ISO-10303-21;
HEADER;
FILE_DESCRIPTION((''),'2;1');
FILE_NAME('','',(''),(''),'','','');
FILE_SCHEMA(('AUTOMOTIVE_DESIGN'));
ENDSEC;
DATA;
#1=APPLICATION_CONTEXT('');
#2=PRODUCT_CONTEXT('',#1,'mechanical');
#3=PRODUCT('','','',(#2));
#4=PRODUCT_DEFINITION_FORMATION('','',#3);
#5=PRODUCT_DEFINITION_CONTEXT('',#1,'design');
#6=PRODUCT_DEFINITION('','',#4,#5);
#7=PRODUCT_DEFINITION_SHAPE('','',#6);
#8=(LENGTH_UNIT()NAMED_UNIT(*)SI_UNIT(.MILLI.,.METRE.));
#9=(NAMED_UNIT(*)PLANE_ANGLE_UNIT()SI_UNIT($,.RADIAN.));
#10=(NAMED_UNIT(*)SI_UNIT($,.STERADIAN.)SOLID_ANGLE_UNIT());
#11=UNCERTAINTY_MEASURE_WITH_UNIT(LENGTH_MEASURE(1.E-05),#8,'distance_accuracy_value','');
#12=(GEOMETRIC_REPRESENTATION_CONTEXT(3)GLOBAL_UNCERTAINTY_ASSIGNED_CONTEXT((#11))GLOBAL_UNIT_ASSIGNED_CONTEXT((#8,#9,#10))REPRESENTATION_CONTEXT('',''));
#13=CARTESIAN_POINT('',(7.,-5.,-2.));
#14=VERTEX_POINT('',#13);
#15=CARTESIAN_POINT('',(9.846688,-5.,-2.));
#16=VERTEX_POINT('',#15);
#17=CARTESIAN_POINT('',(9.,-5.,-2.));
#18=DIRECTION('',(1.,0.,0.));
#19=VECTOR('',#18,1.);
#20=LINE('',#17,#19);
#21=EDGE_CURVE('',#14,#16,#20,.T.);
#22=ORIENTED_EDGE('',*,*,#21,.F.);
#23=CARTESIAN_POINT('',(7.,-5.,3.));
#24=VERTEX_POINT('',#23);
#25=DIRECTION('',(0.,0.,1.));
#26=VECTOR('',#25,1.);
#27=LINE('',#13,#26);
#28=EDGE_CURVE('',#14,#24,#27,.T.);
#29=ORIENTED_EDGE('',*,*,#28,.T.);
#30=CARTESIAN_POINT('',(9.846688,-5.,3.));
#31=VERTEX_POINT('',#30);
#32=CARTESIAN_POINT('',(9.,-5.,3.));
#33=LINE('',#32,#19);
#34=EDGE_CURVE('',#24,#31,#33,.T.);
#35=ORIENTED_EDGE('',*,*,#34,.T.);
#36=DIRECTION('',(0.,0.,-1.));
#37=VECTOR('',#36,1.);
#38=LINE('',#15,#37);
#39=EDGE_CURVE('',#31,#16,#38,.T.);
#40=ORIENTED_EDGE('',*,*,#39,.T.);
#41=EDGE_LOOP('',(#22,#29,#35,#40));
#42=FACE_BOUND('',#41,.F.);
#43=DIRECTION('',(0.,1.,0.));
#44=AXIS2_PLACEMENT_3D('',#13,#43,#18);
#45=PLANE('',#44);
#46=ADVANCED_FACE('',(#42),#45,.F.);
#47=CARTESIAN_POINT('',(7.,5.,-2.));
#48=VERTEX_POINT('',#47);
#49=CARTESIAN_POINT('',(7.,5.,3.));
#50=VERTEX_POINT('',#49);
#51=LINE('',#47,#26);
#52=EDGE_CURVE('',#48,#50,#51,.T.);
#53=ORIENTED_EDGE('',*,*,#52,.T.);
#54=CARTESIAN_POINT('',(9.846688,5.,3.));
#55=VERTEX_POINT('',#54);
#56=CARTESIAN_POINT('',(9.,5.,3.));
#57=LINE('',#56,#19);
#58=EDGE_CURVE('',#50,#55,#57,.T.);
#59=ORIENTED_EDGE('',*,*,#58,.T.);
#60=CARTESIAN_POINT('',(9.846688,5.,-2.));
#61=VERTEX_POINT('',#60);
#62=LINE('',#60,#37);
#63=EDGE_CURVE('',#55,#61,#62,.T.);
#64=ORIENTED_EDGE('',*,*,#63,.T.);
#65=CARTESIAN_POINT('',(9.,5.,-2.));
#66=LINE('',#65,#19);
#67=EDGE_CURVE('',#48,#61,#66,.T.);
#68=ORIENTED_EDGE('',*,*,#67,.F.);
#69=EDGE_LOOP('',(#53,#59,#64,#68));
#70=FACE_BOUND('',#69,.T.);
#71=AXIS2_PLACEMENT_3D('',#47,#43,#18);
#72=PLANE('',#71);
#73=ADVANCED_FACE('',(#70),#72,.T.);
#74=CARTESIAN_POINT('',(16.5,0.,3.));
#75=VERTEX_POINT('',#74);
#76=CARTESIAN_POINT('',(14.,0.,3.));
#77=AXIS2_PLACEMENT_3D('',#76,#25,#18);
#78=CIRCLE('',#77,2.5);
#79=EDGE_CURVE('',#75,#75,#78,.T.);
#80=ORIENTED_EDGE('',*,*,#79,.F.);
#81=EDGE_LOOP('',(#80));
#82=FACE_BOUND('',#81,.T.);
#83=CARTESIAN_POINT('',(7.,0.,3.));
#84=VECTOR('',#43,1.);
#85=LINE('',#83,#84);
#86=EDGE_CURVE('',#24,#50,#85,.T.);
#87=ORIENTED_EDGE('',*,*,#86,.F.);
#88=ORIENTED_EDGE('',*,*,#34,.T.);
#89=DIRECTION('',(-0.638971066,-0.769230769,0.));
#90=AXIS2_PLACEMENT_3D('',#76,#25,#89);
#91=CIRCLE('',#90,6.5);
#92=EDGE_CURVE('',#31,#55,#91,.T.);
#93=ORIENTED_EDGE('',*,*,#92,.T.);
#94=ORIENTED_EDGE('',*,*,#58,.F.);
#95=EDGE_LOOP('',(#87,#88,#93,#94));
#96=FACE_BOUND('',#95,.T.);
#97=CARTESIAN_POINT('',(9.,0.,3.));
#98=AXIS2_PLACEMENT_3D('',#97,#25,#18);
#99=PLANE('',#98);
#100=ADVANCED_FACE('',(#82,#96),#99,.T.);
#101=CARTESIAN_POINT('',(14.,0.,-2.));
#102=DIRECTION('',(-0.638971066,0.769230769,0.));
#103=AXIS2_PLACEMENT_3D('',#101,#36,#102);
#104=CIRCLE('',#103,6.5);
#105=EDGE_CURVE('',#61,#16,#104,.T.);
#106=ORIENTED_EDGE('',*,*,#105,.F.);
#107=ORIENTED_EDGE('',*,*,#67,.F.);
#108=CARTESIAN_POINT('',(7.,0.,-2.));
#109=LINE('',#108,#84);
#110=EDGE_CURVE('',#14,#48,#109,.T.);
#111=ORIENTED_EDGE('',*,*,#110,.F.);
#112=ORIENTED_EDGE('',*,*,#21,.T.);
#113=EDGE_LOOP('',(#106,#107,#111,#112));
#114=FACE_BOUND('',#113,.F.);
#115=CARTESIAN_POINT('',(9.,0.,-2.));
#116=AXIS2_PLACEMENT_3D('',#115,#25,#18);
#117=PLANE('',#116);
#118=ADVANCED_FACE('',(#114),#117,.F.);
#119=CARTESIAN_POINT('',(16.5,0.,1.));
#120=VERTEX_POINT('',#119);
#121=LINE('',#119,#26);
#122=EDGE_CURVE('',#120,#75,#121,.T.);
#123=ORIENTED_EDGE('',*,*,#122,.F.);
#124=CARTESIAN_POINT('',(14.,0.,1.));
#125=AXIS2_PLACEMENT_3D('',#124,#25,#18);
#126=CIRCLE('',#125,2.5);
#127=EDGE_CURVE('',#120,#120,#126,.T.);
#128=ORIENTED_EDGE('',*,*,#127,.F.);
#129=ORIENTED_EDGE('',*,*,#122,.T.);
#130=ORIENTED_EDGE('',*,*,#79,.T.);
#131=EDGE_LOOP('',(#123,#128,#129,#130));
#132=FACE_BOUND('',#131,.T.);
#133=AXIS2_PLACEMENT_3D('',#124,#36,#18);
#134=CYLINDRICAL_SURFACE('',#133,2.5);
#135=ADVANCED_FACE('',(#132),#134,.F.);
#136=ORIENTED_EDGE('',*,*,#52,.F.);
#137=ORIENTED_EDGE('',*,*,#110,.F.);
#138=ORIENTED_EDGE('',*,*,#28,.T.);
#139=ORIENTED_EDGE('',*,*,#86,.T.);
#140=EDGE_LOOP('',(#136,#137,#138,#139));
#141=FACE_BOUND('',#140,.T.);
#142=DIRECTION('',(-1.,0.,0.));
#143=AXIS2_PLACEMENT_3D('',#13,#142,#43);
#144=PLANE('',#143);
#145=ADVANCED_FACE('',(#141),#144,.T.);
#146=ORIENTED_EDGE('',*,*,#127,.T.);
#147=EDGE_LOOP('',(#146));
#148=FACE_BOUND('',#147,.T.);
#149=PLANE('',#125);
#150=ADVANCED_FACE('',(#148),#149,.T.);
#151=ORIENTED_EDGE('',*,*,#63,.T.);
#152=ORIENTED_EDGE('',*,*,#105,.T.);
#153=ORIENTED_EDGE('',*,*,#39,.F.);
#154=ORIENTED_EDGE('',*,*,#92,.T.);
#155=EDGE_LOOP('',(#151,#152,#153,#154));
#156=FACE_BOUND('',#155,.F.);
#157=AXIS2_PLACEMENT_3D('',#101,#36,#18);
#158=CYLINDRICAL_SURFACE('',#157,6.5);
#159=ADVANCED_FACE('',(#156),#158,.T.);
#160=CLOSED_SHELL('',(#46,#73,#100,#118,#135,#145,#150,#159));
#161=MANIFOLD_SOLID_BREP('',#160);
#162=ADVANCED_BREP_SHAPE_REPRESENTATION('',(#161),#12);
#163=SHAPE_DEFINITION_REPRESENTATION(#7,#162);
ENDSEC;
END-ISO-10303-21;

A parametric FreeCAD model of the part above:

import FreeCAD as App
import Part
import Sketcher
from FreeCAD import Vector


def add_polygon(sketch, points):
    """Adds a closed chain of lines whose ends are joined by coincident constraints."""
    first, n = sketch.GeometryCount, len(points)
    for a, b in zip(points, points[1:] + points[:1]):
        sketch.addGeometry(Part.LineSegment(App.Vector(*a, 0), App.Vector(*b, 0)), False)
    for i in range(n):
        sketch.addConstraint(Sketcher.Constraint("Coincident", first + i, 2, first + (i + 1) % n, 1))

doc = App.newDocument("Part")
body = doc.addObject("PartDesign::Body", "Body")

sketch1 = body.newObject("Sketcher::SketchObject", "Sketch")
sketch1.AttachmentSupport = (doc.getObject("XY_Plane"), [""])
sketch1.MapMode = "FlatFace"
add_polygon(sketch1, [(7, 5), (7, -5), (11, -5), (11, 5)])
sketch1.addConstraint(Sketcher.Constraint("Vertical", 0))
sketch1.addConstraint(Sketcher.Constraint("Horizontal", 1))
sketch1.addConstraint(Sketcher.Constraint("Vertical", 2))
sketch1.addConstraint(Sketcher.Constraint("Horizontal", 3))
sketch1.addConstraint(Sketcher.Constraint("DistanceX", 1, 1, 1, 2, 4.0))
sketch1.addConstraint(Sketcher.Constraint("DistanceY", 0, 2, 0, 1, 10.0))
sketch1.addConstraint(Sketcher.Constraint("DistanceX", -1, 1, 0, 2, 7.0))
sketch1.addConstraint(Sketcher.Constraint("DistanceY", 0, 2, -1, 1, 5.0))
pad1 = body.newObject("PartDesign::Pad", "Pad")
pad1.Profile = sketch1
pad1.Length = 5
body2 = doc.addObject("PartDesign::Body", "Body001")

sketch2 = body2.newObject("Sketcher::SketchObject", "Sketch001")
sketch2.AttachmentSupport = (doc.getObject("XY_Plane001"), [""])
sketch2.MapMode = "FlatFace"
sketch2.AttachmentOffset = App.Placement(Vector(0, 0, 3), App.Rotation())
sketch2.addGeometry(Part.Circle(Vector(14, 0, 0), Vector(0, 0, 1), 2.5), False)
sketch2.addConstraint(Sketcher.Constraint("PointOnObject", 0, 3, -1))
sketch2.addConstraint(Sketcher.Constraint("Diameter", 0, 5.0))
sketch2.addConstraint(Sketcher.Constraint("DistanceX", -1, 1, 0, 3, 14.0))
pad2 = body2.newObject("PartDesign::Pad", "Pad001")
pad2.Profile = sketch2
pad2.Length = 2
body3 = doc.addObject("PartDesign::Body", "Body002")

sketch3 = body3.newObject("Sketcher::SketchObject", "Sketch002")
sketch3.AttachmentSupport = (doc.getObject("XY_Plane002"), [""])
sketch3.MapMode = "FlatFace"
sketch3.addGeometry(Part.Circle(Vector(14, 0, 0), Vector(0, 0, 1), 6), False)
sketch3.addConstraint(Sketcher.Constraint("PointOnObject", 0, 3, -1))
sketch3.addConstraint(Sketcher.Constraint("Diameter", 0, 13.0))
sketch3.addConstraint(Sketcher.Constraint("DistanceX", -1, 1, 0, 3, 14.0))
pad3 = body3.newObject("PartDesign::Pad", "Pad002")
pad3.Profile = sketch3
pad3.Length = 5
doc.recompute()

boolean = body3.newObject("PartDesign::Boolean", "Boolean")
boolean.Type = "Cut"
boolean.addObjects([body2])
doc.recompute()

boolean2 = body3.newObject("PartDesign::Boolean", "Boolean001")
boolean2.Type = "Fuse"
boolean2.addObjects([body])
body4 = doc.addObject("PartDesign::Body", "Body003")
doc.recompute()

body3.Placement = App.Placement(Vector(0, 0, -2), App.Rotation(Vector(0, 0, 1), 0))
boolean3 = body4.newObject("PartDesign::Boolean", "Boolean002")
boolean3.Type = "Fuse"
boolean3.addObjects([body3])

doc.recompute()
